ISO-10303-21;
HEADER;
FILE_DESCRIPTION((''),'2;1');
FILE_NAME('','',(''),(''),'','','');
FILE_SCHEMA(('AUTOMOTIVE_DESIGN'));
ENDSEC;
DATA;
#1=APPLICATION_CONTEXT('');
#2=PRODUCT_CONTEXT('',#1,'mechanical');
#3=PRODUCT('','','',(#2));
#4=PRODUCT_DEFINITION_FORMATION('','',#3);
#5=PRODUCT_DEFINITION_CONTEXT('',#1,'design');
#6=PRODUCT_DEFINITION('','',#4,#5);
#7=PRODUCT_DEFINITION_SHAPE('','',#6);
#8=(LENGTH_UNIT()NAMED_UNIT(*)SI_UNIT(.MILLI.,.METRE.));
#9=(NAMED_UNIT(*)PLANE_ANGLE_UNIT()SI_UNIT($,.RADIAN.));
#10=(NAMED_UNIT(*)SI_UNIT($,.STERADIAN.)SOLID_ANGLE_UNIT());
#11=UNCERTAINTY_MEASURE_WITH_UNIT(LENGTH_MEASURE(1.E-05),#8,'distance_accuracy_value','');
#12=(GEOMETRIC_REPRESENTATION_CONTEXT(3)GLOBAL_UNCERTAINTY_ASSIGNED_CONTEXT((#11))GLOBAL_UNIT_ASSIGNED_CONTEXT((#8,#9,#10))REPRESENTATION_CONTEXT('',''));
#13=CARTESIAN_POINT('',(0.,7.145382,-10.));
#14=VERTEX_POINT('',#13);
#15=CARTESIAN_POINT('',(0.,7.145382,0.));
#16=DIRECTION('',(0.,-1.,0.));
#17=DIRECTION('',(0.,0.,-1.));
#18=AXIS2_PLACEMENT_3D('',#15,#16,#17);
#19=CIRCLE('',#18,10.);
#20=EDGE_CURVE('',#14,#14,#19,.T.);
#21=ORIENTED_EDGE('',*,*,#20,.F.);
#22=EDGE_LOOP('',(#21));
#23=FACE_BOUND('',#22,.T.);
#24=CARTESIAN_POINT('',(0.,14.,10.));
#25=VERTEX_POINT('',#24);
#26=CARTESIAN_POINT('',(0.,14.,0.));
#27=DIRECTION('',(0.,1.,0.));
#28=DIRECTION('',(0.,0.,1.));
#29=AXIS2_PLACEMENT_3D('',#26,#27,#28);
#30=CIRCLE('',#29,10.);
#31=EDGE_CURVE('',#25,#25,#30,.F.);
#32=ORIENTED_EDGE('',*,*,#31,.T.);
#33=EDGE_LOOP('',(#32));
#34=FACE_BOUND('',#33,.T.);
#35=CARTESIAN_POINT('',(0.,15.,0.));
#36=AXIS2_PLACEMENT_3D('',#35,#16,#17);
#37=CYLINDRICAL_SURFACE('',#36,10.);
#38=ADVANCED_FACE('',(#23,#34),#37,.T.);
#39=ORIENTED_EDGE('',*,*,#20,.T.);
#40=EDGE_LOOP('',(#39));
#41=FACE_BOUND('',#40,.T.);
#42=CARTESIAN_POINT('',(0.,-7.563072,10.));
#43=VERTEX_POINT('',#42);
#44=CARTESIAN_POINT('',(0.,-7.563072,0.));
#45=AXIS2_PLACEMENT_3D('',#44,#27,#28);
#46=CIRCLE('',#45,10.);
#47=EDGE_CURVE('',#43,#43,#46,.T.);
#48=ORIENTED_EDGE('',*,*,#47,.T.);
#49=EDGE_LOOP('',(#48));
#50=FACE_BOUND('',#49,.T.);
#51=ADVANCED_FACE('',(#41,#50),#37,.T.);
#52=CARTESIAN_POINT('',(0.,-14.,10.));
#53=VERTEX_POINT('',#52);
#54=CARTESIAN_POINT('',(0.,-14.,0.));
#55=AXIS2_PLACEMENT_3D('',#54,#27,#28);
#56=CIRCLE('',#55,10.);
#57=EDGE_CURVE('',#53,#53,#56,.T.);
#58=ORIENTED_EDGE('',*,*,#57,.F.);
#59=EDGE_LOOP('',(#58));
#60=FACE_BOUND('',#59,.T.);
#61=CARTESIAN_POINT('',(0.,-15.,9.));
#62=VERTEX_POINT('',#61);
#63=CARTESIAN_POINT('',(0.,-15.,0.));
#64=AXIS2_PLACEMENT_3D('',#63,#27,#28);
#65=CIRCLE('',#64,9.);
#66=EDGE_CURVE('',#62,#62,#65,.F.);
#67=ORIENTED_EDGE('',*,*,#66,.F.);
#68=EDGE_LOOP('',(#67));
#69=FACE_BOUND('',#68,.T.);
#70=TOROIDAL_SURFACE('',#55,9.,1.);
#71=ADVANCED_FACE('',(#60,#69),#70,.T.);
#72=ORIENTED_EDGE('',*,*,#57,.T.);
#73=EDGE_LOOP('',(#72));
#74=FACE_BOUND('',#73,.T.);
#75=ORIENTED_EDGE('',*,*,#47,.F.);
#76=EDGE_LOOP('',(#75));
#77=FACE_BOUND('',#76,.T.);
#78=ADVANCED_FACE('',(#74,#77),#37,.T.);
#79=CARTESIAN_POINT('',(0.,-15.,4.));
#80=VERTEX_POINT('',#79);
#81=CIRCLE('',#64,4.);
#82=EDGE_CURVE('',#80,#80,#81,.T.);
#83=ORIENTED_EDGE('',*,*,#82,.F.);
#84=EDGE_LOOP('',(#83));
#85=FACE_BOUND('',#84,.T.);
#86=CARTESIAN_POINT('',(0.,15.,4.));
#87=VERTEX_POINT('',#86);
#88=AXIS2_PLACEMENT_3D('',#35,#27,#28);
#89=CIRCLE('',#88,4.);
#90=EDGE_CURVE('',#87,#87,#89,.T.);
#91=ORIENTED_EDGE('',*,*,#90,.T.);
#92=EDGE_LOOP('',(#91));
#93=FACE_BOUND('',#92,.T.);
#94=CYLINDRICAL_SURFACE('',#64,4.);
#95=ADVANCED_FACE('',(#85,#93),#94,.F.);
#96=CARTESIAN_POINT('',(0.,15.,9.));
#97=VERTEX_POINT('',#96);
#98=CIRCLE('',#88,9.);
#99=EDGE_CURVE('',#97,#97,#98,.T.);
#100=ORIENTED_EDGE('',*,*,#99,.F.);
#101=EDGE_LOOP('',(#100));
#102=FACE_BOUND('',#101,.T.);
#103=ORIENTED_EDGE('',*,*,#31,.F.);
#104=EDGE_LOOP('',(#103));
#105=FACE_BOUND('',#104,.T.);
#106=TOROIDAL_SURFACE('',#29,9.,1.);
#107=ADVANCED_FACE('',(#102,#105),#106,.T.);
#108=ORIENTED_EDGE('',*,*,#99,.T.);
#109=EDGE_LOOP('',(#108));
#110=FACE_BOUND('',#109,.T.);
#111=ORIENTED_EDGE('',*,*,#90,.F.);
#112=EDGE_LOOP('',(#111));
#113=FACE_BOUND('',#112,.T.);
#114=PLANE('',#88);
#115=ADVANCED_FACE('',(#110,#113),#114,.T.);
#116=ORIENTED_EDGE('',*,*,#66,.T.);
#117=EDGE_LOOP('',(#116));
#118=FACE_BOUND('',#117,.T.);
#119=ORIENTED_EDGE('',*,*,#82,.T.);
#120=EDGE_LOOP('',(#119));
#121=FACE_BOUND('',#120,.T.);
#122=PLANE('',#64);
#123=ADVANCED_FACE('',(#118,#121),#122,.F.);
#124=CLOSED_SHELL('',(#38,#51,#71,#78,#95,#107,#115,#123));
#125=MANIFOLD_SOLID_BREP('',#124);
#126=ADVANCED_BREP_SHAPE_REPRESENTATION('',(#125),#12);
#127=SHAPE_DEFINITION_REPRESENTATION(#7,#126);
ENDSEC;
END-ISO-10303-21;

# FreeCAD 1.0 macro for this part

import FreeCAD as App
import Part
import Sketcher

V = App.Vector


def edges_at(feature, points):
    """Names of the edges that pass closest to the given points."""
    edges = feature.Shape.Edges
    near = lambda p: min(range(len(edges)), key=lambda i: edges[i].distToShape(Part.Vertex(*p))[0])
    return sorted({f"Edge{near(p) + 1}" for p in points})

doc = App.newDocument("Part")
body = doc.addObject("PartDesign::Body", "Body")

# Sketch on XZ plane
sketch1 = body.newObject("Sketcher::SketchObject", "Sketch")
sketch1.AttachmentSupport = (doc.getObject("XZ_Plane"), [""])
sketch1.MapMode = "FlatFace"
sketch1.addGeometry(Part.Circle(V(0, 0, 0), V(0, 0, 1), 10), False)
sketch1.addConstraint([
    Sketcher.Constraint("Coincident", 0, 3, -1, 1),
    Sketcher.Constraint("Diameter", 0, 20.0),
])
pad1 = body.newObject("PartDesign::Pad", "Pad")
pad1.Profile = sketch1
pad1.Length = 30
pad1.Midplane = True

# Sketch on XZ plane
sketch2 = body.newObject("Sketcher::SketchObject", "Sketch001")
sketch2.AttachmentSupport = (doc.getObject("XZ_Plane"), [""])
sketch2.MapMode = "FlatFace"
sketch2.AttachmentOffset = App.Placement(V(0, 0, -15), App.Rotation())
sketch2.addGeometry(Part.Circle(V(0, 0, 0), V(0, 0, 1), 4), False)
sketch2.addConstraint([
    Sketcher.Constraint("Coincident", 0, 3, -1, 1),
    Sketcher.Constraint("Diameter", 0, 8.0),
])
pocket1 = body.newObject("PartDesign::Pocket", "Pocket")
pocket1.Profile = sketch2
pocket1.Type = "ThroughAll"
pocket1.Reversed = True
doc.recompute()

fillet = body.newObject("PartDesign::Fillet", "Fillet")
fillet.Base = (pocket1, edges_at(pocket1, [(0, -15, -10), (0, 15, -10)]))
fillet.Radius = 1

doc.recompute()
